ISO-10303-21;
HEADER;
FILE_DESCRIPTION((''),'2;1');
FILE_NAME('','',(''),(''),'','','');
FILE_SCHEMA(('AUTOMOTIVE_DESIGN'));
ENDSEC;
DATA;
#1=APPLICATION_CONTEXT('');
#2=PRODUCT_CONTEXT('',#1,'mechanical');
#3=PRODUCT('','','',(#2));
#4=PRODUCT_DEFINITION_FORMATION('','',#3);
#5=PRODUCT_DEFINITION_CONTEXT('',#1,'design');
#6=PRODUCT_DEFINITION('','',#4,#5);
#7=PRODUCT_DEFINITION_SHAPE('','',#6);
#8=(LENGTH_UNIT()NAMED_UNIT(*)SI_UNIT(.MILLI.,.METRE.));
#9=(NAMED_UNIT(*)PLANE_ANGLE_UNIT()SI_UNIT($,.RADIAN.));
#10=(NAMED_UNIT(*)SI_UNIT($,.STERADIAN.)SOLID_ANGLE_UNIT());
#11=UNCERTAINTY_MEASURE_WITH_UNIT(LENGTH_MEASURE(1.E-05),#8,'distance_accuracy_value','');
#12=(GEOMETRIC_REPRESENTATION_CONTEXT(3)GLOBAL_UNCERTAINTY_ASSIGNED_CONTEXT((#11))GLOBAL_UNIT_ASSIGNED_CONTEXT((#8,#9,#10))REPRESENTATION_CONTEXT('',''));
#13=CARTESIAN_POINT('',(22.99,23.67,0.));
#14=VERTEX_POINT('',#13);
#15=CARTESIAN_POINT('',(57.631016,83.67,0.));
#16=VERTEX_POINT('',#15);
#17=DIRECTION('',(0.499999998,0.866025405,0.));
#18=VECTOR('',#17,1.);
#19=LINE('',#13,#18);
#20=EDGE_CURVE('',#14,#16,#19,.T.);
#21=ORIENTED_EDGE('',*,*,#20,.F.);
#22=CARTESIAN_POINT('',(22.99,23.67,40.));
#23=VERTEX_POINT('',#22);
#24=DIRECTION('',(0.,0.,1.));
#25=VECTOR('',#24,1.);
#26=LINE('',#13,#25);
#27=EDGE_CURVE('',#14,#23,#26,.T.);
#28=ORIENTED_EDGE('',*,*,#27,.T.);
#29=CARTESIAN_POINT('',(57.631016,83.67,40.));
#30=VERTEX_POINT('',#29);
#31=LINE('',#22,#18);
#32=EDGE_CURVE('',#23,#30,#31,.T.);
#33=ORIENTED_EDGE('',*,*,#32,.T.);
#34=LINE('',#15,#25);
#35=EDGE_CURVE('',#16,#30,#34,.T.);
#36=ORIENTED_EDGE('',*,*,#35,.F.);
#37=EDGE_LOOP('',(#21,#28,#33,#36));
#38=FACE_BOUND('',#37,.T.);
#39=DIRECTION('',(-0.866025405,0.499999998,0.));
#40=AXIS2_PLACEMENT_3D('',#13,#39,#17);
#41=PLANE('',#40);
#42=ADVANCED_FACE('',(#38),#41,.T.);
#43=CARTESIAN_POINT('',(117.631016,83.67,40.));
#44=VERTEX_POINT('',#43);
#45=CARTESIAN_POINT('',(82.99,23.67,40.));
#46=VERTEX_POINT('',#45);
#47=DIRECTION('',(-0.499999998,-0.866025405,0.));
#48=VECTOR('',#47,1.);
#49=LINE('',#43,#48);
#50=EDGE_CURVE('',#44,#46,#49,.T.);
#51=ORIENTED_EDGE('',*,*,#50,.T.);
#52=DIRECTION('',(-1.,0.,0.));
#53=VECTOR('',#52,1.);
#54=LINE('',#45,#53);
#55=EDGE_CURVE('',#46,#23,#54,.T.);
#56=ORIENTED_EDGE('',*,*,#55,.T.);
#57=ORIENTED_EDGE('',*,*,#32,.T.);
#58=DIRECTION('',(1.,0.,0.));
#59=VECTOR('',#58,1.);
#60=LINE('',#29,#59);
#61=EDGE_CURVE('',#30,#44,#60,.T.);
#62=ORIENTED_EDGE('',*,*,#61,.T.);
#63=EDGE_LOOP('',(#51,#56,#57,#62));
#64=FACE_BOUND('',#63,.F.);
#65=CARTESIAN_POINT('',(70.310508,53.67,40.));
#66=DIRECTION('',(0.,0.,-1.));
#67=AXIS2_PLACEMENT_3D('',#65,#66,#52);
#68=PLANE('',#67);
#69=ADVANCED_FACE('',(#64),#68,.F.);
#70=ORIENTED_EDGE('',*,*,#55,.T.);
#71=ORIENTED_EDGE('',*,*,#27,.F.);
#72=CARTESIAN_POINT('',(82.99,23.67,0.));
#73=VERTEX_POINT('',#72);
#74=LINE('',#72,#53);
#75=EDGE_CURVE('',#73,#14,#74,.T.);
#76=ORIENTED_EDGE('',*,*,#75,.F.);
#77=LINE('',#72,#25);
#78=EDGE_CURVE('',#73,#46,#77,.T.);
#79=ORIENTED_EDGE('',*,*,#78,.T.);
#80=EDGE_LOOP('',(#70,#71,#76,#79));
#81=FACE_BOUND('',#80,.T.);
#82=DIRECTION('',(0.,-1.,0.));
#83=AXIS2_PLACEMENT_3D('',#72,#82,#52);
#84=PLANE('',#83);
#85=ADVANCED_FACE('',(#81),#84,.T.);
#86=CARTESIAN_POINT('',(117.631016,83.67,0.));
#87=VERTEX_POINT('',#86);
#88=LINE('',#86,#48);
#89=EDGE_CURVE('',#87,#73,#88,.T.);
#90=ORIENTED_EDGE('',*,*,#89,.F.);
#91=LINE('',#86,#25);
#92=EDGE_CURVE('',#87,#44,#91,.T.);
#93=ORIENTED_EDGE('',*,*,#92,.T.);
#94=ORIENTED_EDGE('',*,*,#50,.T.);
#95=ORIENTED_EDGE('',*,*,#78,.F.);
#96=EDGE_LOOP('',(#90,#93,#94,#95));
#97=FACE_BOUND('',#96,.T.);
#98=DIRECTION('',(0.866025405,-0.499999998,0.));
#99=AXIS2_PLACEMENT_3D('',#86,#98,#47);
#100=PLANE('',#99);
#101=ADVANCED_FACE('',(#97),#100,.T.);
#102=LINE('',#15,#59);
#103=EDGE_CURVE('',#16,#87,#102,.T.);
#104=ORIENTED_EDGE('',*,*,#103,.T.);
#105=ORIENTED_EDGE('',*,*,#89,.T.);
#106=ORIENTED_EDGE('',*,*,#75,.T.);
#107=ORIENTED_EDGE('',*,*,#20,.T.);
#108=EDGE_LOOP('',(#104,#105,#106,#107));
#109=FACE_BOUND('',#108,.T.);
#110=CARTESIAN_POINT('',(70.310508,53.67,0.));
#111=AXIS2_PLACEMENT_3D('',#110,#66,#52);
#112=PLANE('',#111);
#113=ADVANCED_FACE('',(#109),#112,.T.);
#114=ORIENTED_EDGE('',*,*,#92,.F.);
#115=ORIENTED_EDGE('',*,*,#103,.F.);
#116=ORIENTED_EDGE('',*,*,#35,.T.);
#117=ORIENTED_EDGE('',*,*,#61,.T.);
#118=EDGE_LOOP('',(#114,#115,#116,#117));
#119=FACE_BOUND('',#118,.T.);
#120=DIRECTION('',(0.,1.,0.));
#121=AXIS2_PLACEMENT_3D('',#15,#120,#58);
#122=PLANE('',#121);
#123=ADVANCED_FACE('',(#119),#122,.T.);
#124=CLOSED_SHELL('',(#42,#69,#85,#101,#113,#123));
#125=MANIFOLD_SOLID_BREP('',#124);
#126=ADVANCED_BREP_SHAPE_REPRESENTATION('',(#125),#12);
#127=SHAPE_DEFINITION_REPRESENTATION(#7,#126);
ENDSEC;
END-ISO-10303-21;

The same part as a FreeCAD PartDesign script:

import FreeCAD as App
import Part
import Sketcher
Q = App.Units.Quantity


def add_polygon(sketch, points):
    """Adds a closed chain of lines whose ends are joined by coincident constraints."""
    first, n = sketch.GeometryCount, len(points)
    for a, b in zip(points, points[1:] + points[:1]):
        sketch.addGeometry(Part.LineSegment(App.Vector(*a, 0), App.Vector(*b, 0)), False)
    for i in range(n):
        sketch.addConstraint(Sketcher.Constraint("Coincident", first + i, 2, first + (i + 1) % n, 1))

doc = App.newDocument("Part")
body = doc.addObject("PartDesign::Body", "Body")

sketch1 = doc.addObject("Sketcher::SketchObject", "Sketch")
body.addObject(sketch1)
sketch1.AttachmentSupport = (doc.XY_Plane, [""])
sketch1.MapMode = "FlatFace"
add_polygon(sketch1, [(117.631016, 83.67), (57.631016, 83.67), (22.99, 23.67), (82.99, 23.67)])
sketch1.addConstraint(Sketcher.Constraint("Horizontal", 0))
sketch1.addConstraint(Sketcher.Constraint("Horizontal", 2))
sketch1.addConstraint(Sketcher.Constraint("Parallel", 1, 3))
sketch1.addConstraint(Sketcher.Constraint("DistanceX", 0, 2, 0, 1, Q("60 mm")))
sketch1.addConstraint(Sketcher.Constraint("Angle", 1, Q("-120 deg")))
sketch1.addConstraint(Sketcher.Constraint("DistanceY", 1, 2, 0, 2, Q("60 mm")))
sketch1.addConstraint(Sketcher.Constraint("DistanceY", -1, 1, 0, 2, Q("83.67 mm")))
sketch1.addConstraint(Sketcher.Constraint("DistanceX", -1, 1, 1, 2, Q("22.99 mm")))
pad1 = doc.addObject("PartDesign::Pad", "Pad")
body.addObject(pad1)
pad1.Profile = sketch1
pad1.Length = 40

doc.recompute()
